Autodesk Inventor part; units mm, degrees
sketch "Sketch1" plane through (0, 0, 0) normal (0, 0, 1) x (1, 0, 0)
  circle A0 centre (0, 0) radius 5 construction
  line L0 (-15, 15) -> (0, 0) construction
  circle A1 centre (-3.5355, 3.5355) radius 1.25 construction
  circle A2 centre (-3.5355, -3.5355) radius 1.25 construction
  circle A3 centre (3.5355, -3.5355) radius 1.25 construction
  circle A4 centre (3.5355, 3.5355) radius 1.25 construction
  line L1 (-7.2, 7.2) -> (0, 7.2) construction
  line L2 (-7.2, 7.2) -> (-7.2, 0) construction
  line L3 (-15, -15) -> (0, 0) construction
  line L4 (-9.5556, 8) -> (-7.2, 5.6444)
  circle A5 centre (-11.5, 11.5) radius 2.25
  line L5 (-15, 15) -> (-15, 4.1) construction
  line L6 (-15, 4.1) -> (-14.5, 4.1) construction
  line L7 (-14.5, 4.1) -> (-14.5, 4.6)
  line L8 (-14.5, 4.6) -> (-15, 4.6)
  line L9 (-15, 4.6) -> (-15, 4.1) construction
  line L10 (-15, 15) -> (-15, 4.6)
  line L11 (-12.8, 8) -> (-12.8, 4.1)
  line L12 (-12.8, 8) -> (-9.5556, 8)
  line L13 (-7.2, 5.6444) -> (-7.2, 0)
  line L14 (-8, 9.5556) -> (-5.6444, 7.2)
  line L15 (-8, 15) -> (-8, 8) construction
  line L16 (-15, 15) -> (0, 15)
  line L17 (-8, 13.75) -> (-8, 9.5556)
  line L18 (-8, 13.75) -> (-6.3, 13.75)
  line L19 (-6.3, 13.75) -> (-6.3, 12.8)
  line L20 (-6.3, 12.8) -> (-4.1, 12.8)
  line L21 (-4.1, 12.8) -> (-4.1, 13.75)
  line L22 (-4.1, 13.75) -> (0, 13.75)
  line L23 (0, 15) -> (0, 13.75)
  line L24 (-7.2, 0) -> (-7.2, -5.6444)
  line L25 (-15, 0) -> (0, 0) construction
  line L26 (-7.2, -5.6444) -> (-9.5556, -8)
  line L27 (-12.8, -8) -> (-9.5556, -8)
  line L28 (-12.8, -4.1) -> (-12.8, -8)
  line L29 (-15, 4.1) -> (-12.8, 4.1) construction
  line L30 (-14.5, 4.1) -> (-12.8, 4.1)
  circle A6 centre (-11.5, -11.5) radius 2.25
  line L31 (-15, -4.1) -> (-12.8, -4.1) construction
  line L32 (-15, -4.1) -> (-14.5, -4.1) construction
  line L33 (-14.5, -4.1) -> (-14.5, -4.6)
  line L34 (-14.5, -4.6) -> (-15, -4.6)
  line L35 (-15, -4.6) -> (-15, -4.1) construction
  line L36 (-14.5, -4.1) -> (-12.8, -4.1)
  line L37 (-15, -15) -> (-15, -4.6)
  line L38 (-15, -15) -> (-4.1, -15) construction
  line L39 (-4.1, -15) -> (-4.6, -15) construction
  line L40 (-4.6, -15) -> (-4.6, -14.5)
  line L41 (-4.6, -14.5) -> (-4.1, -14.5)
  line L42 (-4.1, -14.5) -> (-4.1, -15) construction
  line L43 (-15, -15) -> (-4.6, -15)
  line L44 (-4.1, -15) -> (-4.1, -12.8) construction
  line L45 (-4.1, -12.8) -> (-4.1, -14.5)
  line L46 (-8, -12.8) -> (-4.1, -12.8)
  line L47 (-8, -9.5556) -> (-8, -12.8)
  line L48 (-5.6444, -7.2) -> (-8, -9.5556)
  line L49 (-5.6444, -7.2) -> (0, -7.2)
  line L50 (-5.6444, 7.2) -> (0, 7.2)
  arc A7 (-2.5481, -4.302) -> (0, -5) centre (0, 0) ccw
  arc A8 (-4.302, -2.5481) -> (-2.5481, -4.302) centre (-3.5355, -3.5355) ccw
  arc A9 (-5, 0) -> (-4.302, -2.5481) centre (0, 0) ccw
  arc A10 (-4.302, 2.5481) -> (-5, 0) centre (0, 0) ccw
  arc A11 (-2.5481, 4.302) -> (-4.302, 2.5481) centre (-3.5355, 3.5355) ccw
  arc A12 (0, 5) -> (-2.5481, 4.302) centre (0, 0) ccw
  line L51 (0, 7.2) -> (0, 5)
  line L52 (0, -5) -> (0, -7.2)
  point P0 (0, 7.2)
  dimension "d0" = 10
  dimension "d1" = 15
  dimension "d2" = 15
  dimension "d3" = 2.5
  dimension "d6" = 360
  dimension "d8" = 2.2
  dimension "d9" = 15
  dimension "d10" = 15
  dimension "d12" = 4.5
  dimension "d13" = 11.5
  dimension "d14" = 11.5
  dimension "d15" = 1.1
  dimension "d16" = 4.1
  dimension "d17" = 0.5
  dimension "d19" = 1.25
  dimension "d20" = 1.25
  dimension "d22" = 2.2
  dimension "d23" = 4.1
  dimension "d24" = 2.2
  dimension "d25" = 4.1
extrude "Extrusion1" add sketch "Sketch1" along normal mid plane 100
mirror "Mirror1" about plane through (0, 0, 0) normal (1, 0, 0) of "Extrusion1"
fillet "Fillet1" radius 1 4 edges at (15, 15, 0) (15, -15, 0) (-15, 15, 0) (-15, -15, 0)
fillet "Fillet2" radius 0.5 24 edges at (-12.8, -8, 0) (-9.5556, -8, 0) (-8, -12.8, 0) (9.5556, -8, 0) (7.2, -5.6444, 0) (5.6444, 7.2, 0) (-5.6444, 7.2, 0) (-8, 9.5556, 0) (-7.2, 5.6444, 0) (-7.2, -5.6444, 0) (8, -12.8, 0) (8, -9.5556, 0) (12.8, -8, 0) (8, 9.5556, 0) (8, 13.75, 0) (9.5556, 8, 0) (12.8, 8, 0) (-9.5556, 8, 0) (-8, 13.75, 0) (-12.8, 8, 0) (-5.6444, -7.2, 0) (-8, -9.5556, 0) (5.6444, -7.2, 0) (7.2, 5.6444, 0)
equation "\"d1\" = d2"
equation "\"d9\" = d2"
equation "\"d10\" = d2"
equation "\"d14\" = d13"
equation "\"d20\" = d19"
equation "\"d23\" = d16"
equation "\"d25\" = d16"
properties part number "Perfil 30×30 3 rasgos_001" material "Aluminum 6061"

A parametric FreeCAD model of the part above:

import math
import FreeCAD as App
import Part
import Sketcher
from FreeCAD import Vector


def edges_at(feature, points):
    """Names of the edges that pass closest to the given points."""
    edges = feature.Shape.Edges
    near = lambda p: min(range(len(edges)), key=lambda i: edges[i].distToShape(Part.Vertex(*p))[0])
    return sorted({f"Edge{near(p) + 1}" for p in points})

doc = App.newDocument("Part")
body = doc.addObject("PartDesign::Body", "Body")

# Sketch on XY plane
sketch1 = body.newObject("Sketcher::SketchObject", "Sketch")
sketch1.AttachmentSupport = (doc.getObject("XY_Plane"), [""])
sketch1.MapMode = "FlatFace"
sketch1.addGeometry([
    Part.LineSegment(Vector(-12.8, 8, 0), Vector(-9.6, 8, 0)),  # 0
    Part.LineSegment(Vector(-9.6, 8, 0), Vector(-7.2, 5.6, 0)),  # 1
    Part.LineSegment(Vector(-7.2, 5.6, 0), Vector(-7.2, -5.6, 0)),  # 2
    Part.LineSegment(Vector(-7.2, -5.6, 0), Vector(-9.6, -8, 0)),  # 3
    Part.LineSegment(Vector(-9.6, -8, 0), Vector(-12.8, -8, 0)),  # 4
    Part.LineSegment(Vector(-12.8, -8, 0), Vector(-12.8, -4.1, 0)),  # 5
    Part.LineSegment(Vector(-12.8, -4.1, 0), Vector(-14.5, -4.1, 0)),  # 6
    Part.LineSegment(Vector(-14.5, -4.1, 0), Vector(-14.5, -4.6, 0)),  # 7
    Part.LineSegment(Vector(-14.5, -4.6, 0), Vector(-15, -4.6, 0)),  # 8
    Part.LineSegment(Vector(-15, -4.6, 0), Vector(-15, -15, 0)),  # 9
    Part.LineSegment(Vector(-15, -15, 0), Vector(-4.6, -15, 0)),  # 10
    Part.LineSegment(Vector(-4.6, -15, 0), Vector(-4.6, -14.5, 0)),  # 11
    Part.LineSegment(Vector(-4.6, -14.5, 0), Vector(-4.1, -14.5, 0)),  # 12
    Part.LineSegment(Vector(-4.1, -14.5, 0), Vector(-4.1, -12.8, 0)),  # 13
    Part.LineSegment(Vector(-4.1, -12.8, 0), Vector(-8, -12.8, 0)),  # 14
    Part.LineSegment(Vector(-8, -12.8, 0), Vector(-8, -9.6, 0)),  # 15
    Part.LineSegment(Vector(-8, -9.6, 0), Vector(-5.6, -7.2, 0)),  # 16
    Part.LineSegment(Vector(-5.6, -7.2, 0), Vector(0, -7.2, 0)),  # 17
    Part.LineSegment(Vector(0, -7.2, 0), Vector(0, -5, 0)),  # 18
    Part.ArcOfCircle(Part.Circle(Vector(0, 0, 0), Vector(0, 0, 1), 5), math.radians(-121), math.radians(-90)),  # 19
    Part.ArcOfCircle(Part.Circle(Vector(-3.5, -3.5, 0), Vector(0, 0, 1), 1.2), math.radians(128), math.radians(322)),  # 20
    Part.ArcOfCircle(Part.Circle(Vector(0, 0, 0), Vector(0, 0, 1), 5), math.radians(180), math.radians(211)),  # 21
    Part.ArcOfCircle(Part.Circle(Vector(0, 0, 0), Vector(0, 0, 1), 5), math.radians(149), math.radians(180)),  # 22
    Part.ArcOfCircle(Part.Circle(Vector(-3.5, 3.5, 0), Vector(0, 0, 1), 1.2), math.radians(38), math.radians(232)),  # 23
    Part.ArcOfCircle(Part.Circle(Vector(0, 0, 0), Vector(0, 0, 1), 5), math.radians(90), math.radians(121)),  # 24
    Part.LineSegment(Vector(0, 5, 0), Vector(0, 7.2, 0)),  # 25
    Part.LineSegment(Vector(0, 7.2, 0), Vector(-5.6, 7.2, 0)),  # 26
    Part.LineSegment(Vector(-5.6, 7.2, 0), Vector(-8, 9.6, 0)),  # 27
    Part.LineSegment(Vector(-8, 9.6, 0), Vector(-8, 13.8, 0)),  # 28
    Part.LineSegment(Vector(-8, 13.8, 0), Vector(-6.3, 13.8, 0)),  # 29
    Part.LineSegment(Vector(-6.3, 13.8, 0), Vector(-6.3, 12.8, 0)),  # 30
    Part.LineSegment(Vector(-6.3, 12.8, 0), Vector(-4.1, 12.8, 0)),  # 31
    Part.LineSegment(Vector(-4.1, 12.8, 0), Vector(-4.1, 13.8, 0)),  # 32
    Part.LineSegment(Vector(-4.1, 13.8, 0), Vector(0, 13.8, 0)),  # 33
    Part.LineSegment(Vector(0, 13.8, 0), Vector(0, 15, 0)),  # 34
    Part.LineSegment(Vector(0, 15, 0), Vector(-15, 15, 0)),  # 35
    Part.LineSegment(Vector(-15, 15, 0), Vector(-15, 4.6, 0)),  # 36
    Part.LineSegment(Vector(-15, 4.6, 0), Vector(-14.5, 4.6, 0)),  # 37
    Part.LineSegment(Vector(-14.5, 4.6, 0), Vector(-14.5, 4.1, 0)),  # 38
    Part.LineSegment(Vector(-14.5, 4.1, 0), Vector(-12.8, 4.1, 0)),  # 39
    Part.LineSegment(Vector(-12.8, 4.1, 0), Vector(-12.8, 8, 0)),  # 40
    Part.Circle(Vector(-11.5, -11.5, 0), Vector(0, 0, 1), 2.2),  # 41
    Part.Circle(Vector(-11.5, 11.5, 0), Vector(0, 0, 1), 2.2),  # 42
], False)
sketch1.addConstraint([
    Sketcher.Constraint("Coincident", 0, 2, 1, 1),
    Sketcher.Constraint("Coincident", 1, 2, 2, 1),
    Sketcher.Constraint("Coincident", 2, 2, 3, 1),
    Sketcher.Constraint("Coincident", 3, 2, 4, 1),
    Sketcher.Constraint("Coincident", 4, 2, 5, 1),
    Sketcher.Constraint("Coincident", 5, 2, 6, 1),
    Sketcher.Constraint("Coincident", 6, 2, 7, 1),
    Sketcher.Constraint("Coincident", 7, 2, 8, 1),
    Sketcher.Constraint("Coincident", 8, 2, 9, 1),
    Sketcher.Constraint("Coincident", 9, 2, 10, 1),
    Sketcher.Constraint("Coincident", 10, 2, 11, 1),
    Sketcher.Constraint("Coincident", 11, 2, 12, 1),
    Sketcher.Constraint("Coincident", 12, 2, 13, 1),
    Sketcher.Constraint("Coincident", 13, 2, 14, 1),
    Sketcher.Constraint("Coincident", 14, 2, 15, 1),
    Sketcher.Constraint("Coincident", 15, 2, 16, 1),
    Sketcher.Constraint("Coincident", 16, 2, 17, 1),
    Sketcher.Constraint("Coincident", 17, 2, 18, 1),
    Sketcher.Constraint("Coincident", 18, 2, 19, 2),
    Sketcher.Constraint("Coincident", 19, 1, 20, 2),
    Sketcher.Constraint("Coincident", 20, 1, 21, 2),
    Sketcher.Constraint("Tangent", 21, 1, 22, 2),
    Sketcher.Constraint("Coincident", 22, 1, 23, 2),
    Sketcher.Constraint("Coincident", 23, 1, 24, 2),
    Sketcher.Constraint("Coincident", 24, 1, 25, 1),
    Sketcher.Constraint("Coincident", 25, 2, 26, 1),
    Sketcher.Constraint("Coincident", 26, 2, 27, 1),
    Sketcher.Constraint("Coincident", 27, 2, 28, 1),
    Sketcher.Constraint("Coincident", 28, 2, 29, 1),
    Sketcher.Constraint("Coincident", 29, 2, 30, 1),
    Sketcher.Constraint("Coincident", 30, 2, 31, 1),
    Sketcher.Constraint("Coincident", 31, 2, 32, 1),
    Sketcher.Constraint("Coincident", 32, 2, 33, 1),
    Sketcher.Constraint("Coincident", 33, 2, 34, 1),
    Sketcher.Constraint("Coincident", 34, 2, 35, 1),
    Sketcher.Constraint("Coincident", 35, 2, 36, 1),
    Sketcher.Constraint("Coincident", 36, 2, 37, 1),
    Sketcher.Constraint("Coincident", 37, 2, 38, 1),
    Sketcher.Constraint("Coincident", 38, 2, 39, 1),
    Sketcher.Constraint("Coincident", 39, 2, 40, 1),
    Sketcher.Constraint("Coincident", 40, 2, 0, 1),
    Sketcher.Constraint("Horizontal", 0),
    Sketcher.Constraint("Vertical", 2),
    Sketcher.Constraint("Horizontal", 4),
    Sketcher.Constraint("Vertical", 5),
    Sketcher.Constraint("Horizontal", 6),
    Sketcher.Constraint("Vertical", 7),
    Sketcher.Constraint("Horizontal", 8),
    Sketcher.Constraint("Vertical", 9),
    Sketcher.Constraint("Horizontal", 10),
    Sketcher.Constraint("Vertical", 11),
    Sketcher.Constraint("Horizontal", 12),
    Sketcher.Constraint("Vertical", 13),
    Sketcher.Constraint("Horizontal", 14),
    Sketcher.Constraint("Vertical", 15),
    Sketcher.Constraint("Horizontal", 17),
    Sketcher.Constraint("Vertical", 18),
    Sketcher.Constraint("Vertical", 25),
    Sketcher.Constraint("Horizontal", 26),
    Sketcher.Constraint("Vertical", 28),
    Sketcher.Constraint("Horizontal", 29),
    Sketcher.Constraint("Vertical", 30),
    Sketcher.Constraint("Horizontal", 31),
    Sketcher.Constraint("Vertical", 32),
    Sketcher.Constraint("Horizontal", 33),
    Sketcher.Constraint("Vertical", 34),
    Sketcher.Constraint("Horizontal", 35),
    Sketcher.Constraint("Vertical", 36),
    Sketcher.Constraint("Horizontal", 37),
    Sketcher.Constraint("Vertical", 38),
    Sketcher.Constraint("Horizontal", 39),
    Sketcher.Constraint("Vertical", 40),
    Sketcher.Constraint("Coincident", 19, 3, -1, 1),
    Sketcher.Constraint("Coincident", 21, 3, -1, 1),
    Sketcher.Constraint("Coincident", 24, 3, -1, 1),
    Sketcher.Constraint("Equal", 19, 21),
    Sketcher.Constraint("Equal", 21, 22),
    Sketcher.Constraint("Equal", 20, 23),
    Sketcher.Constraint("Equal", 22, 24),
    Sketcher.Constraint("Equal", 41, 42),
    Sketcher.Constraint("Symmetric", 17, 2, 25, 2, -1, 1),
    Sketcher.Constraint("Symmetric", 20, 3, 23, 3, -1),
    Sketcher.Constraint("Symmetric", 41, 3, 42, 3, -1),
    Sketcher.Constraint("Symmetric", 0, 2, 3, 2, -1),
    Sketcher.Constraint("Symmetric", 15, 2, 27, 2, -1),
    Sketcher.Constraint("Symmetric", 13, 2, 31, 2, -1),
    Sketcher.Constraint("Symmetric", 9, 2, 35, 2, -1),
    Sketcher.Constraint("Symmetric", 7, 2, 37, 2, -1),
    Sketcher.Constraint("Symmetric", 5, 2, 39, 2, -1),
    Sketcher.Constraint("PointOnObject", 17, 2, -2),
    Sketcher.Constraint("PointOnObject", 21, 1, -1),
    Sketcher.Constraint("PointOnObject", 33, 2, -2),
    Sketcher.Constraint("Perpendicular", 1, 3),
    Sketcher.Constraint("Parallel", 3, 16),
    Sketcher.Constraint("Perpendicular", 16, 27),
    Sketcher.Constraint("Horizontal", 29, 2, 32, 2),
    Sketcher.Constraint("Vertical", 16, 2, 26, 2),
    Sketcher.Constraint("Equal", 8, 12),
    Sketcher.Constraint("Equal", 6, 29),
    Sketcher.Constraint("Equal", 14, 5),
    Sketcher.Constraint("Equal", 37, 7),
    Sketcher.Constraint("Equal", 10, 9),
    Sketcher.Constraint("Equal", 7, 11),
    Sketcher.Constraint("Equal", 39, 13),
    Sketcher.Constraint("Equal", 4, 15),
    Sketcher.Constraint("Equal", 31, 18),
    Sketcher.Constraint("Equal", 3, 16),
    Sketcher.Constraint("Radius", 19, 5.0),
    Sketcher.Constraint("Diameter", 41, 4.5),
    Sketcher.Constraint("DistanceX", 35, 2, 35, 1, 15.0),
    Sketcher.Constraint("Radius", 20, 1.25),
    Sketcher.Constraint("DistanceX", 8, 2, 8, 1, 0.5),
    Sketcher.Constraint("DistanceX", 31, 1, 31, 2, 2.2),
    Sketcher.Constraint("DistanceX", 33, 1, 33, 2, 4.1),
    Sketcher.Constraint("DistanceY", 9, 2, -1, 1, 15.0),
    Sketcher.Constraint("DistanceY", 34, 1, 34, 2, 1.25),
    Sketcher.Constraint("DistanceX", 41, 3, -1, 1, 11.5),
    Sketcher.Constraint("DistanceY", 41, 3, -1, 1, 11.5),
    Sketcher.Constraint("DistanceX", 8, 2, 5, 2, 2.2),
    Sketcher.Constraint("DistanceX", 0, 2, 23, 3, 6.02),
    Sketcher.Constraint("DistanceY", 23, 3, 27, 2, 6.02),
    Sketcher.Constraint("DistanceX", 0, 1, 0, 2, 3.2444),
])
pad1 = body.newObject("PartDesign::Pad", "Pad")
pad1.Profile = sketch1
pad1.Length = 100
pad1.Midplane = True
doc.recompute()

mirrored = body.newObject("PartDesign::Mirrored", "Mirrored")
mirrored.Originals = [pad1]
mirrored.MirrorPlane = (doc.getObject("YZ_Plane"), [""])
body.Tip = mirrored
doc.recompute()

fillet = body.newObject("PartDesign::Fillet", "Fillet")
fillet.Base = (mirrored, edges_at(mirrored, [
    (15, 15, 0),
    (15, -15, 0),
    (-15, 15, 0),
    (-15, -15, 0),
]))
fillet.Radius = 1
doc.recompute()

fillet2 = body.newObject("PartDesign::Fillet", "Fillet001")
fillet2.Base = (fillet, edges_at(fillet, [
    (-12.8, -8, 0),
    (-9.556, -8, 0),
    (-8, -12.8, 0),
    (9.556, -8, 0),
    (7.2, -5.644, 0),
    (5.644, 7.2, 0),
    (-5.644, 7.2, 0),
    (-8, 9.556, 0),
    (-7.2, 5.644, 0),
    (-7.2, -5.644, 0),
    (8, -12.8, 0),
    (8, -9.556, 0),
    (12.8, -8, 0),
    (8, 9.556, 0),
    (8, 13.75, 0),
    (9.556, 8, 0),
    (12.8, 8, 0),
    (-9.556, 8, 0),
    (-8, 13.75, 0),
    (-12.8, 8, 0),
    (-5.644, -7.2, 0),
    (-8, -9.556, 0),
    (5.644, -7.2, 0),
    (7.2, 5.644, 0),
]))
fillet2.Radius = 0.5

doc.recompute()
